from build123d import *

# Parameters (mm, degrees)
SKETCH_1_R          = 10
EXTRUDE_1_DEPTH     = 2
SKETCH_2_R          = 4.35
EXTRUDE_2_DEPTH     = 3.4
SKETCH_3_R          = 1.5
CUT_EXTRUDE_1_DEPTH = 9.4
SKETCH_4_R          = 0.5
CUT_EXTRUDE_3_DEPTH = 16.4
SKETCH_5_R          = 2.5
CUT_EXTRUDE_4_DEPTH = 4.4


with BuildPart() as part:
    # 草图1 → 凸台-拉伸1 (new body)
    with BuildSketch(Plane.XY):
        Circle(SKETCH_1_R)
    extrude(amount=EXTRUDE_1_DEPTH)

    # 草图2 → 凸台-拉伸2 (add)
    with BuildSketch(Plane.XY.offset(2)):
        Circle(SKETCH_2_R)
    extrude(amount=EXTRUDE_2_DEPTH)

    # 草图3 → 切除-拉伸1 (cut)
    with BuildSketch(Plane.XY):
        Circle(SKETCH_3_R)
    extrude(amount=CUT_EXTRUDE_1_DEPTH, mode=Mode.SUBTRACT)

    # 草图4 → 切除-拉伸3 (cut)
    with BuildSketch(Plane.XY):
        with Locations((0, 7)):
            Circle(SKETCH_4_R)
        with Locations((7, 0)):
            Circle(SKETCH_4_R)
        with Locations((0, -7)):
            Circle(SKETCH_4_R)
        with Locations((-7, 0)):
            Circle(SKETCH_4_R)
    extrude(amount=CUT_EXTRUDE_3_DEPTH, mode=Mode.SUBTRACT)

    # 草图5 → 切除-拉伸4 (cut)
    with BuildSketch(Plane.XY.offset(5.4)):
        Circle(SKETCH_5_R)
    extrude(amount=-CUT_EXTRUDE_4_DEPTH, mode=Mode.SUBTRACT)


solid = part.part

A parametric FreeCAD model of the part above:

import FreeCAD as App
import Part
import Sketcher
from FreeCAD import Vector

doc = App.newDocument("Part")
body = doc.addObject("PartDesign::Body", "Body")

# Sketch on XY plane
sketch1 = doc.addObject("Sketcher::SketchObject", "Sketch")
body.addObject(sketch1)
sketch1.AttachmentSupport = (doc.XY_Plane, [""])
sketch1.MapMode = "FlatFace"
sketch1.addGeometry(Part.Circle(Vector(0, 0, 0), Vector(0, 0, 1), 10), False)
sketch1.addConstraint([
    Sketcher.Constraint("Coincident", 0, 3, -1, 1),
    Sketcher.Constraint("Diameter", 0, 20.0),
])
pad1 = doc.addObject("PartDesign::Pad", "Pad")
body.addObject(pad1)
pad1.Profile = sketch1
pad1.Length = 2

# Sketch on XY plane
sketch2 = doc.addObject("Sketcher::SketchObject", "Sketch001")
body.addObject(sketch2)
sketch2.AttachmentSupport = (doc.XY_Plane, [""])
sketch2.MapMode = "FlatFace"
sketch2.AttachmentOffset = App.Placement(Vector(0, 0, 2), App.Rotation())
sketch2.addGeometry(Part.Circle(Vector(0, 0, 0), Vector(0, 0, 1), 4.3), False)
sketch2.addConstraint([
    Sketcher.Constraint("Coincident", 0, 3, -1, 1),
    Sketcher.Constraint("Diameter", 0, 8.7),
])
pad2 = doc.addObject("PartDesign::Pad", "Pad001")
body.addObject(pad2)
pad2.Profile = sketch2
pad2.Length = 3.4

# Sketch on XY plane
sketch3 = doc.addObject("Sketcher::SketchObject", "Sketch002")
body.addObject(sketch3)
sketch3.AttachmentSupport = (doc.XY_Plane, [""])
sketch3.MapMode = "FlatFace"
sketch3.addGeometry(Part.Circle(Vector(0, 0, 0), Vector(0, 0, 1), 1.5), False)
sketch3.addConstraint([
    Sketcher.Constraint("Coincident", 0, 3, -1, 1),
    Sketcher.Constraint("Diameter", 0, 3.0),
])
pocket1 = doc.addObject("PartDesign::Pocket", "Pocket")
body.addObject(pocket1)
pocket1.Profile = sketch3
pocket1.Length = 9.4
pocket1.Reversed = True

# Sketch on XY plane
sketch4 = doc.addObject("Sketcher::SketchObject", "Sketch003")
body.addObject(sketch4)
sketch4.AttachmentSupport = (doc.XY_Plane, [""])
sketch4.MapMode = "FlatFace"
sketch4.addGeometry([
    Part.Circle(Vector(0, 7, 0), Vector(0, 0, 1), 0.5),
    Part.Circle(Vector(7, 0, 0), Vector(0, 0, 1), 0.5),
    Part.Circle(Vector(0, -7, 0), Vector(0, 0, 1), 0.5),
    Part.Circle(Vector(-7, 0, 0), Vector(0, 0, 1), 0.5),
], False)
sketch4.addConstraint([
    Sketcher.Constraint("Equal", 0, 1),
    Sketcher.Constraint("Equal", 1, 2),
    Sketcher.Constraint("Equal", 2, 3),
    Sketcher.Constraint("Symmetric", 0, 3, 2, 3, -1, 1),
    Sketcher.Constraint("Symmetric", 1, 3, 3, 3, -1, 1),
    Sketcher.Constraint("PointOnObject", 0, 3, -2),
    Sketcher.Constraint("PointOnObject", 1, 3, -1),
    Sketcher.Constraint("Diameter", 0, 1.0),
    Sketcher.Constraint("DistanceY", -1, 1, 0, 3, 7.0),
    Sketcher.Constraint("DistanceX", -1, 1, 1, 3, 7.0),
])
pocket2 = doc.addObject("PartDesign::Pocket", "Pocket001")
body.addObject(pocket2)
pocket2.Profile = sketch4
pocket2.Length = 16.4
pocket2.Reversed = True

# Sketch on XY plane
sketch5 = doc.addObject("Sketcher::SketchObject", "Sketch004")
body.addObject(sketch5)
sketch5.AttachmentSupport = (doc.XY_Plane, [""])
sketch5.MapMode = "FlatFace"
sketch5.AttachmentOffset = App.Placement(Vector(0, 0, 5.4), App.Rotation())
sketch5.addGeometry(Part.Circle(Vector(0, 0, 0), Vector(0, 0, 1), 2.5), False)
sketch5.addConstraint([
    Sketcher.Constraint("Coincident", 0, 3, -1, 1),
    Sketcher.Constraint("Diameter", 0, 5.0),
])
pocket3 = doc.addObject("PartDesign::Pocket", "Pocket002")
body.addObject(pocket3)
pocket3.Profile = sketch5
pocket3.Length = 4.4

doc.recompute()
